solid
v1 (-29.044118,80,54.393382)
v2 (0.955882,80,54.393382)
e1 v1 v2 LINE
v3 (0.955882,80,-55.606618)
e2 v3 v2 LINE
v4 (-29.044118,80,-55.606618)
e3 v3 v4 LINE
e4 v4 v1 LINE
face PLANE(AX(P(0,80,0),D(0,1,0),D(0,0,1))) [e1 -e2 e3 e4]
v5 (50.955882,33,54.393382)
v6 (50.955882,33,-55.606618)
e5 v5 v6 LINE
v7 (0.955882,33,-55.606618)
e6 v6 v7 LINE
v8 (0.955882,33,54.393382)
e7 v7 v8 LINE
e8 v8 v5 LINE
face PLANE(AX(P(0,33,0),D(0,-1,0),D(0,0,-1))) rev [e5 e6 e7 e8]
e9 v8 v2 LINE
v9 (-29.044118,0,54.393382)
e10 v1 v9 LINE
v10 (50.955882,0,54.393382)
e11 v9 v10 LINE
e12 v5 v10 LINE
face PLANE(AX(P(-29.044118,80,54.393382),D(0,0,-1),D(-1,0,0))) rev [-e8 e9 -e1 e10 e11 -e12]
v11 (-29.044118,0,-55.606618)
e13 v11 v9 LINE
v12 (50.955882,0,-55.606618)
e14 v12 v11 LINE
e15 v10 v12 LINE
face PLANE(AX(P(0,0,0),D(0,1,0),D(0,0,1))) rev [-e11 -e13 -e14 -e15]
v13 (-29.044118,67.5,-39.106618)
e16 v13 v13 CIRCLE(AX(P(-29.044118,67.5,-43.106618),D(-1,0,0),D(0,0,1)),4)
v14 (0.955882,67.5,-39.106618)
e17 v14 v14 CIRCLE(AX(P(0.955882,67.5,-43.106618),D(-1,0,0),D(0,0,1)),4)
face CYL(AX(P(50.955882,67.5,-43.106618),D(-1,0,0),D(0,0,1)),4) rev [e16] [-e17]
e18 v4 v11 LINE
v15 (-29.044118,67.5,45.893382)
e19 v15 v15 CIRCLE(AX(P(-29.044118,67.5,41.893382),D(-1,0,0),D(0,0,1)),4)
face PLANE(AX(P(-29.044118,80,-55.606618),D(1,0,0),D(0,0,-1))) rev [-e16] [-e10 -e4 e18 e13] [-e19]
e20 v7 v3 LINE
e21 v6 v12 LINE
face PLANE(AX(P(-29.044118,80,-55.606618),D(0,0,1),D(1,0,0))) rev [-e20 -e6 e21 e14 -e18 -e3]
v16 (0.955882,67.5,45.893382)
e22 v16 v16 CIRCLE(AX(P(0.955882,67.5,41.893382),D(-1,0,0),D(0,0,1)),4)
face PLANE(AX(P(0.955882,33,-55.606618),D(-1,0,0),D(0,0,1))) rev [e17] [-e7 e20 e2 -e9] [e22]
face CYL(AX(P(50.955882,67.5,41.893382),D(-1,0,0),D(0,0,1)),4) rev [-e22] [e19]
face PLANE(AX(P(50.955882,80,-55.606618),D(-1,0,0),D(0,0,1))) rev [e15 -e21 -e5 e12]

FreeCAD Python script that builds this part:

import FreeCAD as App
import Part
import Sketcher
from FreeCAD import Vector


def add_polygon(sketch, points):
    """Adds a closed chain of lines whose ends are joined by coincident constraints."""
    first, n = sketch.GeometryCount, len(points)
    for a, b in zip(points, points[1:] + points[:1]):
        sketch.addGeometry(Part.LineSegment(App.Vector(*a, 0), App.Vector(*b, 0)), False)
    for i in range(n):
        sketch.addConstraint(Sketcher.Constraint("Coincident", first + i, 2, first + (i + 1) % n, 1))

doc = App.newDocument("Part")
params = doc.addObject("Spreadsheet::Sheet", "Params")
for row, (alias, value) in enumerate([
    ("sketch1_width", "80 mm"),
    ("sketch1_height", "110 mm"),
    ("pad1_length", "80 mm"),
    ("sketch2_width", "50 mm"),
    ("sketch2_height", "110 mm"),
    ("pocket1_length", "47 mm"),
    ("sketch3_diameter", "8 mm"),
], start=1):
    params.set(f"A{row}", alias)
    params.set(f"B{row}", "=" + value)
    params.setAlias(f"B{row}", alias)

body = doc.addObject("PartDesign::Body", "Body")

sketch1 = body.newObject("Sketcher::SketchObject", "Sketch")
sketch1.AttachmentSupport = (doc.getObject("XZ_Plane"), [""])
sketch1.MapMode = "FlatFace"
add_polygon(sketch1, [(-29, -56), (-29, 54), (51, 54), (51, -56)])
sketch1.addConstraint(Sketcher.Constraint("Vertical", 0))
sketch1.addConstraint(Sketcher.Constraint("Horizontal", 1))
sketch1.addConstraint(Sketcher.Constraint("Vertical", 2))
sketch1.addConstraint(Sketcher.Constraint("Horizontal", 3))
sketch1.addConstraint(Sketcher.Constraint("DistanceX", 1, 1, 1, 2, 80.0))
sketch1.addConstraint(Sketcher.Constraint("DistanceY", 0, 1, 0, 2, 110.0))
sketch1.addConstraint(Sketcher.Constraint("DistanceX", 0, 2, -1, 1, 29.044118))
sketch1.addConstraint(Sketcher.Constraint("DistanceY", -1, 1, 0, 2, 54.393382))
sketch1.setExpression("Constraints[8]", "Params.sketch1_width")
sketch1.setExpression("Constraints[9]", "Params.sketch1_height")
pad1 = body.newObject("PartDesign::Pad", "Pad")
pad1.Profile = sketch1
pad1.setExpression("Length", "Params.pad1_length")
pad1.Reversed = True

sketch2 = body.newObject("Sketcher::SketchObject", "Sketch001")
sketch2.AttachmentSupport = (doc.getObject("XZ_Plane"), [""])
sketch2.MapMode = "FlatFace"
sketch2.AttachmentOffset = App.Placement(Vector(0, 0, -80), App.Rotation())
add_polygon(sketch2, [(1, -56), (1, 54), (51, 54), (51, -56)])
sketch2.addConstraint(Sketcher.Constraint("Vertical", 0))
sketch2.addConstraint(Sketcher.Constraint("Horizontal", 1))
sketch2.addConstraint(Sketcher.Constraint("Vertical", 2))
sketch2.addConstraint(Sketcher.Constraint("Horizontal", 3))
sketch2.addConstraint(Sketcher.Constraint("DistanceX", 1, 1, 1, 2, 50.0))
sketch2.addConstraint(Sketcher.Constraint("DistanceY", 0, 1, 0, 2, 110.0))
sketch2.addConstraint(Sketcher.Constraint("DistanceX", -1, 1, 0, 2, 0.955882))
sketch2.addConstraint(Sketcher.Constraint("DistanceY", -1, 1, 0, 2, 54.393382))
sketch2.setExpression("Constraints[8]", "Params.sketch2_width")
sketch2.setExpression("Constraints[9]", "Params.sketch2_height")
pocket1 = body.newObject("PartDesign::Pocket", "Pocket")
pocket1.Profile = sketch2
pocket1.setExpression("Length", "Params.pocket1_length")
pocket1.Reversed = True

sketch3 = body.newObject("Sketcher::SketchObject", "Sketch002")
sketch3.AttachmentSupport = (doc.getObject("YZ_Plane"), [""])
sketch3.MapMode = "FlatFace"
sketch3.AttachmentOffset = App.Placement(Vector(0, 0, -29.044118), App.Rotation())
sketch3.addGeometry(Part.Circle(Vector(67.5, 41.9, 0), Vector(0, 0, 1), 4), False)
sketch3.addGeometry(Part.Circle(Vector(67.5, -43.1, 0), Vector(0, 0, 1), 4), False)
sketch3.addConstraint(Sketcher.Constraint("Equal", 0, 1))
sketch3.addConstraint(Sketcher.Constraint("Vertical", 0, 3, 1, 3))
sketch3.addConstraint(Sketcher.Constraint("Diameter", 0, 8.0))
sketch3.addConstraint(Sketcher.Constraint("DistanceY", 1, 3, 0, 3, 85.0))
sketch3.addConstraint(Sketcher.Constraint("DistanceX", -1, 1, 0, 3, 67.5))
sketch3.addConstraint(Sketcher.Constraint("DistanceY", -1, 1, 0, 3, 41.893382))
sketch3.setExpression("Constraints[2]", "Params.sketch3_diameter")
pocket2 = body.newObject("PartDesign::Pocket", "Pocket001")
pocket2.Profile = sketch3
pocket2.Type = "ThroughAll"
pocket2.Reversed = True

doc.recompute()
